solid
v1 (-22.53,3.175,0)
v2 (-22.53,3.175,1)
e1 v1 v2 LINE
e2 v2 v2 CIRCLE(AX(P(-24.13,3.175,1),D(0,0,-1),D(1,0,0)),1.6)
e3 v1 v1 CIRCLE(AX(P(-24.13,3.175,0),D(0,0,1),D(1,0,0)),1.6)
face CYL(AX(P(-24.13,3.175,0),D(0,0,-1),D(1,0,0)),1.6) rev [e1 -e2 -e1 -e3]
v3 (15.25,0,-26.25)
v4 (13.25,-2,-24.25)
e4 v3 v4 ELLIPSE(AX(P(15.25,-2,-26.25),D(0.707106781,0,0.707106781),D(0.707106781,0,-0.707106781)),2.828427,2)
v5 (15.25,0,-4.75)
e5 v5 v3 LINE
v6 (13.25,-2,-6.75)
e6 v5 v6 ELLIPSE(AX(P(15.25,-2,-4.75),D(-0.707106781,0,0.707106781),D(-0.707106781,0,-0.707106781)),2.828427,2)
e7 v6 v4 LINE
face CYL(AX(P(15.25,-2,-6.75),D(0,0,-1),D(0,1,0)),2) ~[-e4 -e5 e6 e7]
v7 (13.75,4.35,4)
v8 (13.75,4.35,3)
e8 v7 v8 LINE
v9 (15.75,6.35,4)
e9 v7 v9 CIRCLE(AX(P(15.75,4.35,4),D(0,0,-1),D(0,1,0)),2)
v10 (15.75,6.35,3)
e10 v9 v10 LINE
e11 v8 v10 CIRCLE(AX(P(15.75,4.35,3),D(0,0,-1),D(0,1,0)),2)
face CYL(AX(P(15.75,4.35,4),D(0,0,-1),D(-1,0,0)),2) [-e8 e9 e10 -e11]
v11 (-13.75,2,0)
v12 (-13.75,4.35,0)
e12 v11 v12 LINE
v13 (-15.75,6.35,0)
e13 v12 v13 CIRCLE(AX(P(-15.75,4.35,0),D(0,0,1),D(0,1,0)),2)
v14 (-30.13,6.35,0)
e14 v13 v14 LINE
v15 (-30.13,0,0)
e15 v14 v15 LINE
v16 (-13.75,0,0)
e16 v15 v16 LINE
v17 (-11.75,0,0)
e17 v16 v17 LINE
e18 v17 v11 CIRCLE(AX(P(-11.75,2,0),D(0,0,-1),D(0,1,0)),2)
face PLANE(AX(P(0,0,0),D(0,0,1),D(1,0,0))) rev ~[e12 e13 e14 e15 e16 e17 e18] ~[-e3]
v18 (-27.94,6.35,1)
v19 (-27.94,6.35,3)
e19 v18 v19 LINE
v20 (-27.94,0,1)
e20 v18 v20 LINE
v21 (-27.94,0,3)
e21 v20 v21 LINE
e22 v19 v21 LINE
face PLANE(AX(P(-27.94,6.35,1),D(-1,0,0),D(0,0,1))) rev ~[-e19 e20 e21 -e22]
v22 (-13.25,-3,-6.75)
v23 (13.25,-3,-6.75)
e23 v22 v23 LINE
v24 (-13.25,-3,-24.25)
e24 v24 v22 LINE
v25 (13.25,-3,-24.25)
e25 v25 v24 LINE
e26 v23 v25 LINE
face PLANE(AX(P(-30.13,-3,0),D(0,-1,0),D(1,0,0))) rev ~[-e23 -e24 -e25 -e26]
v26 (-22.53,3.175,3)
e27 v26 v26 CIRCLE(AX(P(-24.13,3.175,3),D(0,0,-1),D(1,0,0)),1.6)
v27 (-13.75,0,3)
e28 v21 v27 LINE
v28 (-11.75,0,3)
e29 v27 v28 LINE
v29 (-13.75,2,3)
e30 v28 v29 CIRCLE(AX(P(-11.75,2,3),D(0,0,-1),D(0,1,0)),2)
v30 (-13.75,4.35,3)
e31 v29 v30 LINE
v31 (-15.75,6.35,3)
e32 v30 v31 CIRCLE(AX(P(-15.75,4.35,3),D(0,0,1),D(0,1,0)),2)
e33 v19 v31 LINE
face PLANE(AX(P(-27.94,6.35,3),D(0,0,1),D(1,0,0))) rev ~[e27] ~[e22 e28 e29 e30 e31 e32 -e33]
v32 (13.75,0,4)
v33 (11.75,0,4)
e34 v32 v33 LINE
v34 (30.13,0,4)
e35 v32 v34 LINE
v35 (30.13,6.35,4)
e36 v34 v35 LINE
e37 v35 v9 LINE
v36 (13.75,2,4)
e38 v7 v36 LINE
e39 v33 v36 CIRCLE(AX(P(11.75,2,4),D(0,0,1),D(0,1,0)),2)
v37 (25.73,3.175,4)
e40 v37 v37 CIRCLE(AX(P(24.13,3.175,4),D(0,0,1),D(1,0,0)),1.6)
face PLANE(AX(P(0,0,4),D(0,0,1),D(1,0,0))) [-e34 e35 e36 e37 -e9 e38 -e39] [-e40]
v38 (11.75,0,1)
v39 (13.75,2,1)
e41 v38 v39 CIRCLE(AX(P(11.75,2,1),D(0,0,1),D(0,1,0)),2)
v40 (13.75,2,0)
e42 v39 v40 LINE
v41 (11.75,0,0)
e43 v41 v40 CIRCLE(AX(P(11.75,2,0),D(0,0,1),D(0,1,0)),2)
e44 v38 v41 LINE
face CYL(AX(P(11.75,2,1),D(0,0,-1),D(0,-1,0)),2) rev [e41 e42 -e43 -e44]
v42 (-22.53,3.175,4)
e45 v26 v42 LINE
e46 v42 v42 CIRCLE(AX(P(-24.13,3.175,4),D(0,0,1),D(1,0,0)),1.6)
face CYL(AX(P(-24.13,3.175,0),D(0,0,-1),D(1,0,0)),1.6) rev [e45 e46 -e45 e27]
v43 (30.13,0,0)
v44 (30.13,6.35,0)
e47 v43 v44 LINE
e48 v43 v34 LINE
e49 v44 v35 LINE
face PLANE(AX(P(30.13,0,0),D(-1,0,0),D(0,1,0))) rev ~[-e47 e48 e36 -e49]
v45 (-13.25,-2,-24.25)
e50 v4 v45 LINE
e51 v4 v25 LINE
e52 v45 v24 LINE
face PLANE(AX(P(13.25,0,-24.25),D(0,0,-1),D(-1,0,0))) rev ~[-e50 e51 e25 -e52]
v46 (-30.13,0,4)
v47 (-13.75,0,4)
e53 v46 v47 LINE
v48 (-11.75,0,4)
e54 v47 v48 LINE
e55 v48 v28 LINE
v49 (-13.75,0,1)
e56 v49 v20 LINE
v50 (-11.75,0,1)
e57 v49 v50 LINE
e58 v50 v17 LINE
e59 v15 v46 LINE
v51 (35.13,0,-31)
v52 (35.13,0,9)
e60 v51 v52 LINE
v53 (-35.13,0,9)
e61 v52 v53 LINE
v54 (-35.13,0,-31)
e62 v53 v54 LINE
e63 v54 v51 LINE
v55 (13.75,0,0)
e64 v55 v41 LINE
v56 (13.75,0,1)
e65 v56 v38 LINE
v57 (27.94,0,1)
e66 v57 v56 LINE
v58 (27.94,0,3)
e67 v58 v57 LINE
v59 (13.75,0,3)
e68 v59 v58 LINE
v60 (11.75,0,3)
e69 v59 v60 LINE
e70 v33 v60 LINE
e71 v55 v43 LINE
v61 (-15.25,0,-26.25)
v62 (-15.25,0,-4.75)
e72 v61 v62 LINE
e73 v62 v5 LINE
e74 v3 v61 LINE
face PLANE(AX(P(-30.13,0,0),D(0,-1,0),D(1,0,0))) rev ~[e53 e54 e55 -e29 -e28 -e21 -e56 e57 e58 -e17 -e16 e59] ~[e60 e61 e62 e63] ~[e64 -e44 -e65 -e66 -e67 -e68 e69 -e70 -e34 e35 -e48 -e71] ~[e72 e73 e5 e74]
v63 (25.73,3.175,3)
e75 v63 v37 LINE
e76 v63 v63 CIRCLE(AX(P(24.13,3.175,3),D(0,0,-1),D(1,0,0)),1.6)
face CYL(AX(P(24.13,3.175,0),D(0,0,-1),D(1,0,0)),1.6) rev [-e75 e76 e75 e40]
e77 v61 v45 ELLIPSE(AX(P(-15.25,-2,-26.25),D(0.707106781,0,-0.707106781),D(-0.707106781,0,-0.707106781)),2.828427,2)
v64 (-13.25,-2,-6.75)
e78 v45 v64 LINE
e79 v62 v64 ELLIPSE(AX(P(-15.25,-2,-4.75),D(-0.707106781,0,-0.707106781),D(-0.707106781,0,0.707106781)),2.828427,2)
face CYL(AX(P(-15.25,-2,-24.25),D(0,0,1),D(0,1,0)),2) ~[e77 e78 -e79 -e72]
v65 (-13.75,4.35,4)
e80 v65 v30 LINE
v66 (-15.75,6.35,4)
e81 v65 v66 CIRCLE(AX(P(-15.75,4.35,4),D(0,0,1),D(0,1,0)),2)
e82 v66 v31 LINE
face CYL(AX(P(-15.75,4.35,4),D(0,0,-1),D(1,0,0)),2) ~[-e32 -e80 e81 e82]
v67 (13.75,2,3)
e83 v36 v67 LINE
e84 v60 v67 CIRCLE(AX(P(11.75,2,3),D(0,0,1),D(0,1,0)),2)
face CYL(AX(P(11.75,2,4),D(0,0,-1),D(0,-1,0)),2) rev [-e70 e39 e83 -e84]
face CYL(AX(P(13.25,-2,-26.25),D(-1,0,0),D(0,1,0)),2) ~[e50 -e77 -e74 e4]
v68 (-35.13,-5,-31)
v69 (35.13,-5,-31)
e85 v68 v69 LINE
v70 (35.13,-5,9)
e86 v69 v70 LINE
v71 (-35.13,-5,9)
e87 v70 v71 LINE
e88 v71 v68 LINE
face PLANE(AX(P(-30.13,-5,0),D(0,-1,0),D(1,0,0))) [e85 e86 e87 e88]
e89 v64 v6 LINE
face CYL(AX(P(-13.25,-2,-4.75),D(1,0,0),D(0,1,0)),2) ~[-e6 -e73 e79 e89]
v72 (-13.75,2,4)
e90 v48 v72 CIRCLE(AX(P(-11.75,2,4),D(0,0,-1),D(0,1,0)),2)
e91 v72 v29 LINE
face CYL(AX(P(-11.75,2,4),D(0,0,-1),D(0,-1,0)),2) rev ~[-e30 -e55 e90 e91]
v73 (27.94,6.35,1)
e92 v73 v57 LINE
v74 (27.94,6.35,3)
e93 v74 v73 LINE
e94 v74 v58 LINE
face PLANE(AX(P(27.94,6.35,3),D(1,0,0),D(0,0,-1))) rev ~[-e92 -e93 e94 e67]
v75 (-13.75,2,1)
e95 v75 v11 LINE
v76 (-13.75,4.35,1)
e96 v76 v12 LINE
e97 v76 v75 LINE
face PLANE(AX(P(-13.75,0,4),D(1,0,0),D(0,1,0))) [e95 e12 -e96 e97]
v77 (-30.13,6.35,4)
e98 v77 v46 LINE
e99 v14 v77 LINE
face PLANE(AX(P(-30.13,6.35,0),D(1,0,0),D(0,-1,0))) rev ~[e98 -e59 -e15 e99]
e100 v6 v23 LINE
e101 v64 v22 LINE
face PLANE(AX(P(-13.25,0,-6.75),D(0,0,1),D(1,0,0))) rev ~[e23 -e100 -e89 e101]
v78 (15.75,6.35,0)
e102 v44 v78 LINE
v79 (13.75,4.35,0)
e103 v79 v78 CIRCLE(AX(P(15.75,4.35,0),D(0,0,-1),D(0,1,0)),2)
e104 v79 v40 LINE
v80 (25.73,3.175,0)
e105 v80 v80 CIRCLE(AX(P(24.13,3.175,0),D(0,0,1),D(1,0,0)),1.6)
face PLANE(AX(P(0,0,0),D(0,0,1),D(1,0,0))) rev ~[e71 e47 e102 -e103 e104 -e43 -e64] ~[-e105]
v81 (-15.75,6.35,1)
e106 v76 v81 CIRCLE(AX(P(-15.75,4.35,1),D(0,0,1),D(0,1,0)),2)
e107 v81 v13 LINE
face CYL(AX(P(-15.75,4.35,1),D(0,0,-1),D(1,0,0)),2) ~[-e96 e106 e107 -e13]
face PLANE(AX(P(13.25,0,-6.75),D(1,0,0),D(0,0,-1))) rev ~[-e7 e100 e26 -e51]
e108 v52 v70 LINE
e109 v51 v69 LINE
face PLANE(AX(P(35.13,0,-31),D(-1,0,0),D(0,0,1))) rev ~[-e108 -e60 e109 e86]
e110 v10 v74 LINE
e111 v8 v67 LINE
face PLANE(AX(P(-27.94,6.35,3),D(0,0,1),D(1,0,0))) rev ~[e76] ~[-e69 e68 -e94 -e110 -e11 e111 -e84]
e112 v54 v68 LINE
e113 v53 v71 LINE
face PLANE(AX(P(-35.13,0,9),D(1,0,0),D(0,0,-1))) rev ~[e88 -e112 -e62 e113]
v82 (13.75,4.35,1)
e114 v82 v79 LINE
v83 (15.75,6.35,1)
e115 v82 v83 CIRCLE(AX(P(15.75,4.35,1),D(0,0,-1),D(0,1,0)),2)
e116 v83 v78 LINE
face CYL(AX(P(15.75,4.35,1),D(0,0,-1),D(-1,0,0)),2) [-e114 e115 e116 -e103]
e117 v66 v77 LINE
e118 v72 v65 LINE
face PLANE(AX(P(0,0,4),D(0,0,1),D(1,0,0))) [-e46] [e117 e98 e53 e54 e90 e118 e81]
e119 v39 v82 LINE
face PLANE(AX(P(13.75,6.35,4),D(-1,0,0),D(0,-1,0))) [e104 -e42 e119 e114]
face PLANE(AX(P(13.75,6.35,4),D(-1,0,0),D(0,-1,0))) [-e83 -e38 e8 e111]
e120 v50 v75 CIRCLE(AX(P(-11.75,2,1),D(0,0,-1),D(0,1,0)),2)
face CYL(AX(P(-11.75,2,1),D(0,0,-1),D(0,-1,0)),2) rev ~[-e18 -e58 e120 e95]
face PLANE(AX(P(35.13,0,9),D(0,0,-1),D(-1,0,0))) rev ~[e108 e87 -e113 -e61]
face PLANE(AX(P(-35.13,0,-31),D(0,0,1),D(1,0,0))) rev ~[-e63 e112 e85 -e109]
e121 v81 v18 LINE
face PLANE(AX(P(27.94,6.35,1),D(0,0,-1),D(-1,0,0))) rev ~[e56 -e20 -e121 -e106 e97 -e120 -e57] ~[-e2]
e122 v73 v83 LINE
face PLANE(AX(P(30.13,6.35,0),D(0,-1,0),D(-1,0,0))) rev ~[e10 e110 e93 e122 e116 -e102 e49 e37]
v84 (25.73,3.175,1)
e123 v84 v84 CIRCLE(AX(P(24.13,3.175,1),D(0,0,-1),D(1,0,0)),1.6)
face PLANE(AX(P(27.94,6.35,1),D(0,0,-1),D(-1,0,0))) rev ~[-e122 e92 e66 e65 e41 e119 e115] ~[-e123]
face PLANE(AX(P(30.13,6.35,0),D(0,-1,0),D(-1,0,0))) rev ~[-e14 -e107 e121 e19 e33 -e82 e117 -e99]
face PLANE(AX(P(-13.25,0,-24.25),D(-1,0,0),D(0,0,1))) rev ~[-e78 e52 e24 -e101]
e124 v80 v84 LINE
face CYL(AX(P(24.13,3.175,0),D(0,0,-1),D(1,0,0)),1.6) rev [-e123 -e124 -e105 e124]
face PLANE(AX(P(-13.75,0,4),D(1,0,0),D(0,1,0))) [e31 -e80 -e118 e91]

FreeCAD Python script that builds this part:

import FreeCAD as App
import Part
import Sketcher

V = App.Vector


def edges_at(feature, points):
    """Names of the edges that pass closest to the given points."""
    edges = feature.Shape.Edges
    near = lambda p: min(range(len(edges)), key=lambda i: edges[i].distToShape(Part.Vertex(*p))[0])
    return sorted({f"Edge{near(p) + 1}" for p in points})

doc = App.newDocument("Part")
body = doc.addObject("PartDesign::Body", "Body")
body.AllowCompound = True

sketch1 = doc.addObject("Sketcher::SketchObject", "Sketch")
body.addObject(sketch1)
sketch1.AttachmentSupport = (doc.XY_Plane, [""])
sketch1.MapMode = "FlatFace"
sketch1.addGeometry([
    Part.LineSegment(V(-30.13, 6.35, 0), V(-30.13, 0, 0)),
    Part.LineSegment(V(-30.13, 0, 0), V(30.13, 0, 0)),
    Part.LineSegment(V(30.13, 0, 0), V(30.13, 6.35, 0)),
    Part.LineSegment(V(30.13, 6.35, 0), V(-30.13, 6.35, 0)),
    Part.Circle(V(-24.13, 3.175, 0), V(0, 0, 1), 1.6),
    Part.Circle(V(24.13, 3.175, 0), V(0, 0, 1), 1.6),
], False)
sketch1.addConstraint([
    Sketcher.Constraint("Coincident", 0, 2, 1, 1),
    Sketcher.Constraint("Coincident", 1, 2, 2, 1),
    Sketcher.Constraint("Coincident", 2, 2, 3, 1),
    Sketcher.Constraint("Coincident", 3, 2, 0, 1),
    Sketcher.Constraint("Vertical", 0),
    Sketcher.Constraint("Horizontal", 1),
    Sketcher.Constraint("Vertical", 2),
    Sketcher.Constraint("Horizontal", 3),
    Sketcher.Constraint("Equal", 4, 5),
    Sketcher.Constraint("Symmetric", 0, 2, 1, 2, -1, 1),
    Sketcher.Constraint("Symmetric", 4, 3, 5, 3, -2),
    Sketcher.Constraint("Diameter", 4, 3.2),
    Sketcher.Constraint("DistanceX", 0, 2, 4, 3, 6.0),
    Sketcher.Constraint("DistanceY", 0, 2, 0, 1, 6.35),
    Sketcher.Constraint("DistanceX", 4, 3, 5, 3, 48.26),
    Sketcher.Constraint("DistanceY", -1, 1, 4, 3, 3.175),
])
pad1 = doc.addObject("PartDesign::Pad", "Pad")
body.addObject(pad1)
pad1.Profile = sketch1
pad1.Length = 4

sketch2 = doc.addObject("Sketcher::SketchObject", "Sketch001")
body.addObject(sketch2)
sketch2.AttachmentSupport = (doc.XZ_Plane, [""])
sketch2.MapMode = "FlatFace"
sketch2.AttachmentOffset = App.Placement(V(0, 0, -6.35), App.Rotation())
sketch2.addGeometry([
    Part.LineSegment(V(-27.94, 1, 0), V(-27.94, 3, 0)),
    Part.LineSegment(V(-27.94, 3, 0), V(27.94, 3, 0)),
    Part.LineSegment(V(27.94, 3, 0), V(27.94, 1, 0)),
    Part.LineSegment(V(27.94, 1, 0), V(-27.94, 1, 0)),
], False)
sketch2.addConstraint([
    Sketcher.Constraint("Coincident", 0, 2, 1, 1),
    Sketcher.Constraint("Coincident", 1, 2, 2, 1),
    Sketcher.Constraint("Coincident", 2, 2, 3, 1),
    Sketcher.Constraint("Coincident", 3, 2, 0, 1),
    Sketcher.Constraint("Vertical", 0),
    Sketcher.Constraint("Horizontal", 1),
    Sketcher.Constraint("Vertical", 2),
    Sketcher.Constraint("Horizontal", 3),
    Sketcher.Constraint("DistanceY", 0, 1, 0, 2, 2.0),
    Sketcher.Constraint("DistanceX", 1, 1, 1, 2, 55.88),
    Sketcher.Constraint("DistanceY", -1, 1, 0, 2, 3.0),
    Sketcher.Constraint("DistanceX", 0, 2, -1, 1, 27.94),
])
pocket1 = doc.addObject("PartDesign::Pocket", "Pocket")
body.addObject(pocket1)
pocket1.Profile = sketch2
pocket1.Length = 6.35
pocket1.Reversed = True

sketch3 = doc.addObject("Sketcher::SketchObject", "Sketch002")
body.addObject(sketch3)
sketch3.AttachmentSupport = (doc.XY_Plane, [""])
sketch3.MapMode = "FlatFace"
sketch3.AttachmentOffset = App.Placement(V(0, 0, 4), App.Rotation())
sketch3.addGeometry([
    Part.LineSegment(V(13.75, 0, 0), V(13.75, 6.35, 0)),
    Part.LineSegment(V(13.75, 6.35, 0), V(-13.75, 6.35, 0)),
    Part.LineSegment(V(-13.75, 6.35, 0), V(-13.75, 0, 0)),
    Part.LineSegment(V(-13.75, 0, 0), V(13.75, 0, 0)),
], False)
sketch3.addConstraint([
    Sketcher.Constraint("Coincident", 0, 2, 1, 1),
    Sketcher.Constraint("Coincident", 1, 2, 2, 1),
    Sketcher.Constraint("Coincident", 2, 2, 3, 1),
    Sketcher.Constraint("Coincident", 3, 2, 0, 1),
    Sketcher.Constraint("Vertical", 0),
    Sketcher.Constraint("Horizontal", 1),
    Sketcher.Constraint("Vertical", 2),
    Sketcher.Constraint("Horizontal", 3),
    Sketcher.Constraint("Symmetric", 2, 2, 3, 2, -1, 1),
    Sketcher.Constraint("DistanceX", 1, 2, 1, 1, 27.5),
    Sketcher.Constraint("DistanceY", 0, 1, 0, 2, 6.35),
])
pocket2 = doc.addObject("PartDesign::Pocket", "Pocket001")
body.addObject(pocket2)
pocket2.Profile = sketch3
pocket2.Type = "ThroughAll"

sketch4 = doc.addObject("Sketcher::SketchObject", "Sketch003")
body.addObject(sketch4)
sketch4.AttachmentSupport = (doc.XZ_Plane, [""])
sketch4.MapMode = "FlatFace"
sketch4.addGeometry([
    Part.LineSegment(V(35.13, -31, 0), V(35.13, 9, 0)),
    Part.LineSegment(V(35.13, 9, 0), V(-35.13, 9, 0)),
    Part.LineSegment(V(-35.13, 9, 0), V(-35.13, -31, 0)),
    Part.LineSegment(V(-35.13, -31, 0), V(35.13, -31, 0)),
], False)
sketch4.addConstraint([
    Sketcher.Constraint("Coincident", 0, 2, 1, 1),
    Sketcher.Constraint("Coincident", 1, 2, 2, 1),
    Sketcher.Constraint("Coincident", 2, 2, 3, 1),
    Sketcher.Constraint("Coincident", 3, 2, 0, 1),
    Sketcher.Constraint("Vertical", 0),
    Sketcher.Constraint("Horizontal", 1),
    Sketcher.Constraint("Vertical", 2),
    Sketcher.Constraint("Horizontal", 3),
    Sketcher.Constraint("DistanceY", 0, 1, 0, 2, 40.0),
    Sketcher.Constraint("DistanceY", -1, 1, 0, 2, 9.0),
    Sketcher.Constraint("DistanceX", 1, 2, 1, 1, 70.26),
    Sketcher.Constraint("DistanceX", -1, 1, 0, 2, 35.13),
])
pad2 = doc.addObject("PartDesign::Pad", "Pad001")
body.addObject(pad2)
pad2.Profile = sketch4
pad2.Length = 5

sketch5 = doc.addObject("Sketcher::SketchObject", "Sketch004")
body.addObject(sketch5)
sketch5.AttachmentSupport = (doc.XZ_Plane, [""])
sketch5.MapMode = "FlatFace"
sketch5.addGeometry([
    Part.LineSegment(V(13.25, -6.75, 0), V(-13.25, -6.75, 0)),
    Part.LineSegment(V(-13.25, -6.75, 0), V(-13.25, -24.25, 0)),
    Part.LineSegment(V(-13.25, -24.25, 0), V(13.25, -24.25, 0)),
    Part.LineSegment(V(13.25, -24.25, 0), V(13.25, -6.75, 0)),
], False)
sketch5.addConstraint([
    Sketcher.Constraint("Coincident", 0, 2, 1, 1),
    Sketcher.Constraint("Coincident", 1, 2, 2, 1),
    Sketcher.Constraint("Coincident", 2, 2, 3, 1),
    Sketcher.Constraint("Coincident", 3, 2, 0, 1),
    Sketcher.Constraint("Horizontal", 0),
    Sketcher.Constraint("Vertical", 1),
    Sketcher.Constraint("Horizontal", 2),
    Sketcher.Constraint("Vertical", 3),
    Sketcher.Constraint("DistanceX", 0, 2, 0, 1, 26.5),
    Sketcher.Constraint("DistanceY", 1, 2, 1, 1, 17.5),
    Sketcher.Constraint("DistanceX", 0, 2, -1, 1, 13.25),
    Sketcher.Constraint("DistanceY", 0, 2, -1, 1, 6.75),
])
pocket3 = doc.addObject("PartDesign::Pocket", "Pocket002")
body.addObject(pocket3)
pocket3.Profile = sketch5
pocket3.Length = 3
pocket3.Reversed = True
doc.recompute()

fillet = doc.addObject("PartDesign::Fillet", "Fillet")
body.addObject(fillet)
fillet.Base = (pocket3, edges_at(pocket3, [
    (-13.75, 6.35, 3.5),
    (-13.75, 6.35, 0.5),
    (-13.75, 0, 0.5),
    (-13.75, 0, 3.5),
    (13.75, 0, 3.5),
    (13.75, 0, 0.5),
    (13.75, 6.35, 3.5),
    (13.75, 6.35, 0.5),
    (13.25, 0, -15.5),
    (0, 0, -24.25),
    (-13.25, 0, -15.5),
    (0, 0, -6.75),
]))
fillet.Radius = 2

doc.recompute()
